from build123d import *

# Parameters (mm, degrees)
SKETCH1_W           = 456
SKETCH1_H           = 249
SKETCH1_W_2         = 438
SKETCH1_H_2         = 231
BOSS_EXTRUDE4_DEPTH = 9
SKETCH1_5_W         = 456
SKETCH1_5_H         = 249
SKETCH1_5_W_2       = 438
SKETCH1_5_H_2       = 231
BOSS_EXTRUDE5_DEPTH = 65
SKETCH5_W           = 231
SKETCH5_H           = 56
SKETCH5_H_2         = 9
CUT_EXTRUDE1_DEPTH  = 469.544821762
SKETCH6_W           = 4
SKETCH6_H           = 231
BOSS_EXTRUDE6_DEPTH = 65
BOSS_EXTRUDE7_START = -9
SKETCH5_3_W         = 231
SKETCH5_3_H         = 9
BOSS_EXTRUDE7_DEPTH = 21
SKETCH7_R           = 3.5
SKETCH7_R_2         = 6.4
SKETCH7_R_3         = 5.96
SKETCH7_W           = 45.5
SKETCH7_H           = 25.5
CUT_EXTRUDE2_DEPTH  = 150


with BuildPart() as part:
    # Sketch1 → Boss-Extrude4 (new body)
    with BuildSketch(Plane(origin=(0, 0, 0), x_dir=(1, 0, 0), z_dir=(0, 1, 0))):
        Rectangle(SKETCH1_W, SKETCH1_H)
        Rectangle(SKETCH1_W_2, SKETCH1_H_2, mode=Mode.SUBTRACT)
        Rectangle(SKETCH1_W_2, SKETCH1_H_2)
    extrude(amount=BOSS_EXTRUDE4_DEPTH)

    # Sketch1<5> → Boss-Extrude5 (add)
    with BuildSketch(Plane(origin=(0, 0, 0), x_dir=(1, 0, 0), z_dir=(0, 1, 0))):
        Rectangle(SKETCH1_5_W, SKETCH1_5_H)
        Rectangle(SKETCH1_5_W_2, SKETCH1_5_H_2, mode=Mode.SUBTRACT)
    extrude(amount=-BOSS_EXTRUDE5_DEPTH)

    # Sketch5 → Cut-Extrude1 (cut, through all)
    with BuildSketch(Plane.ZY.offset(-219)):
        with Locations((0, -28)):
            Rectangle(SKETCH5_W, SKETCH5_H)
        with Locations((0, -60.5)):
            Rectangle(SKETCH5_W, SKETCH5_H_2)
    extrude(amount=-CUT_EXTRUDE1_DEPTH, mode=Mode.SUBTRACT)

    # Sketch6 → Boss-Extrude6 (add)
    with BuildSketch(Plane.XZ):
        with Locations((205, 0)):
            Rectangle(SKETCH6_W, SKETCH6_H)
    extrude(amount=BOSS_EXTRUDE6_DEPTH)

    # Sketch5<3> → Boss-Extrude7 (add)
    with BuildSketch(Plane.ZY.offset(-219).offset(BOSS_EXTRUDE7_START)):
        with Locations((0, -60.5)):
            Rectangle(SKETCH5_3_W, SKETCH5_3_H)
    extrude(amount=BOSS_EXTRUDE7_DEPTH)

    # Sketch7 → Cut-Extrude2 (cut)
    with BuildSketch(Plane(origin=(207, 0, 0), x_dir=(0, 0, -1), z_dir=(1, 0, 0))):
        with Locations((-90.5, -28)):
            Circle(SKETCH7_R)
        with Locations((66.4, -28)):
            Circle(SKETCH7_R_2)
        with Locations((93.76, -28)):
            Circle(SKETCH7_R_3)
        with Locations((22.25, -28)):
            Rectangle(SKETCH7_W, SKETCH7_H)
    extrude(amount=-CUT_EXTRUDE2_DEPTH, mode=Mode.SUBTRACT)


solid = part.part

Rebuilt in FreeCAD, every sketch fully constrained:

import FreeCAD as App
import Part
import Sketcher
from FreeCAD import Vector
Q = App.Units.Quantity


def add_polygon(sketch, points):
    """Adds a closed chain of lines whose ends are joined by coincident constraints."""
    first, n = sketch.GeometryCount, len(points)
    for a, b in zip(points, points[1:] + points[:1]):
        sketch.addGeometry(Part.LineSegment(App.Vector(*a, 0), App.Vector(*b, 0)), False)
    for i in range(n):
        sketch.addConstraint(Sketcher.Constraint("Coincident", first + i, 2, first + (i + 1) % n, 1))

doc = App.newDocument("Part")
params = doc.addObject("Spreadsheet::Sheet", "Params")
for row, (alias, value) in enumerate([
    ("sketch1_width", "456 mm"),
    ("sketch1_height", "249 mm"),
    ("pad1_length", "9 mm"),
    ("sketch2_width", "456 mm"),
    ("sketch2_width2", "438 mm"),
    ("sketch2_height", "249 mm"),
    ("sketch2_height2", "231 mm"),
    ("pad2_length", "65 mm"),
    ("sketch3_width", "65 mm"),
    ("sketch3_height", "231 mm"),
    ("sketch4_width", "4 mm"),
    ("sketch4_height", "231 mm"),
    ("pad3_length", "65 mm"),
    ("sketch5_width", "9 mm"),
    ("sketch5_height", "231 mm"),
    ("pad4_length", "21 mm"),
    ("sketch6_diameter", "7 mm"),
    ("sketch6_diameter2", "12.8 mm"),
    ("sketch6_diameter3", "11.92 mm"),
    ("sketch6_width", "25.5 mm"),
    ("sketch6_height", "45.5 mm"),
    ("pocket2_length", "150 mm"),
], start=1):
    params.set(f"A{row}", alias)
    params.set(f"B{row}", "=" + value)
    params.setAlias(f"B{row}", alias)

body = doc.addObject("PartDesign::Body", "Body")

sketch1 = body.newObject("Sketcher::SketchObject", "Sketch")
sketch1.AttachmentSupport = (doc.getObject("XZ_Plane"), [""])
sketch1.MapMode = "FlatFace"
add_polygon(sketch1, [(-228, -124), (-228, 124), (228, 124), (228, -124)])
sketch1.addConstraint(Sketcher.Constraint("Vertical", 0))
sketch1.addConstraint(Sketcher.Constraint("Horizontal", 1))
sketch1.addConstraint(Sketcher.Constraint("Vertical", 2))
sketch1.addConstraint(Sketcher.Constraint("Horizontal", 3))
sketch1.addConstraint(Sketcher.Constraint("Symmetric", 0, 2, 2, 2, -1, 1))
sketch1.addConstraint(Sketcher.Constraint("DistanceX", 1, 1, 1, 2, Q("456 mm")))
sketch1.addConstraint(Sketcher.Constraint("DistanceY", 0, 1, 0, 2, Q("249 mm")))
sketch1.setExpression("Constraints[9]", "Params.sketch1_width")
sketch1.setExpression("Constraints[10]", "Params.sketch1_height")
pad1 = body.newObject("PartDesign::Pad", "Pad")
pad1.Profile = sketch1
pad1.setExpression("Length", "Params.pad1_length")
pad1.Reversed = True

sketch2 = body.newObject("Sketcher::SketchObject", "Sketch001")
sketch2.AttachmentSupport = (doc.getObject("XZ_Plane"), [""])
sketch2.MapMode = "FlatFace"
add_polygon(sketch2, [(-228, -124), (-228, 124), (228, 124), (228, -124)])
add_polygon(sketch2, [(219, 116), (-219, 116), (-219, -116), (219, -116)])
sketch2.addConstraint(Sketcher.Constraint("Vertical", 0))
sketch2.addConstraint(Sketcher.Constraint("Horizontal", 1))
sketch2.addConstraint(Sketcher.Constraint("Vertical", 2))
sketch2.addConstraint(Sketcher.Constraint("Horizontal", 3))
sketch2.addConstraint(Sketcher.Constraint("Horizontal", 4))
sketch2.addConstraint(Sketcher.Constraint("Vertical", 5))
sketch2.addConstraint(Sketcher.Constraint("Horizontal", 6))
sketch2.addConstraint(Sketcher.Constraint("Vertical", 7))
sketch2.addConstraint(Sketcher.Constraint("Symmetric", 0, 2, 2, 2, -1, 1))
sketch2.addConstraint(Sketcher.Constraint("Symmetric", 4, 2, 6, 2, -1, 1))
sketch2.addConstraint(Sketcher.Constraint("DistanceX", 1, 1, 1, 2, Q("456 mm")))
sketch2.addConstraint(Sketcher.Constraint("DistanceX", 4, 2, 4, 1, Q("438 mm")))
sketch2.addConstraint(Sketcher.Constraint("DistanceY", 0, 1, 0, 2, Q("249 mm")))
sketch2.addConstraint(Sketcher.Constraint("DistanceY", 5, 2, 5, 1, Q("231 mm")))
sketch2.setExpression("Constraints[18]", "Params.sketch2_width")
sketch2.setExpression("Constraints[19]", "Params.sketch2_width2")
sketch2.setExpression("Constraints[20]", "Params.sketch2_height")
sketch2.setExpression("Constraints[21]", "Params.sketch2_height2")
pad2 = body.newObject("PartDesign::Pad", "Pad001")
pad2.Profile = sketch2
pad2.setExpression("Length", "Params.pad2_length")

sketch3 = body.newObject("Sketcher::SketchObject", "Sketch002")
sketch3.AttachmentSupport = (doc.getObject("YZ_Plane"), [""])
sketch3.MapMode = "FlatFace"
sketch3.AttachmentOffset = App.Placement(Vector(0, 0, 219), App.Rotation())
add_polygon(sketch3, [(0, -116), (-65, -116), (-65, 116), (0, 116)])
sketch3.addConstraint(Sketcher.Constraint("Horizontal", 0))
sketch3.addConstraint(Sketcher.Constraint("Vertical", 1))
sketch3.addConstraint(Sketcher.Constraint("Horizontal", 2))
sketch3.addConstraint(Sketcher.Constraint("Vertical", 3))
sketch3.addConstraint(Sketcher.Constraint("Symmetric", 2, 2, 3, 2, -1, 1))
sketch3.addConstraint(Sketcher.Constraint("DistanceX", 0, 2, 0, 1, Q("65 mm")))
sketch3.addConstraint(Sketcher.Constraint("DistanceY", 1, 1, 1, 2, Q("231 mm")))
sketch3.setExpression("Constraints[9]", "Params.sketch3_width")
sketch3.setExpression("Constraints[10]", "Params.sketch3_height")
pocket1 = body.newObject("PartDesign::Pocket", "Pocket")
pocket1.Profile = sketch3
pocket1.Type = "ThroughAll"
pocket1.Reversed = True

sketch4 = body.newObject("Sketcher::SketchObject", "Sketch003")
sketch4.AttachmentSupport = (doc.getObject("XZ_Plane"), [""])
sketch4.MapMode = "FlatFace"
add_polygon(sketch4, [(203, 115.5), (203, -115.5), (207, -115.5), (207, 115.5)])
sketch4.addConstraint(Sketcher.Constraint("Vertical", 0))
sketch4.addConstraint(Sketcher.Constraint("Horizontal", 1))
sketch4.addConstraint(Sketcher.Constraint("Vertical", 2))
sketch4.addConstraint(Sketcher.Constraint("Horizontal", 3))
sketch4.addConstraint(Sketcher.Constraint("DistanceX", 1, 1, 1, 2, Q("4 mm")))
sketch4.addConstraint(Sketcher.Constraint("DistanceY", 0, 2, 0, 1, Q("231 mm")))
sketch4.addConstraint(Sketcher.Constraint("DistanceX", -1, 1, 0, 2, Q("203 mm")))
sketch4.addConstraint(Sketcher.Constraint("DistanceY", 0, 2, -1, 1, Q("115.5 mm")))
sketch4.setExpression("Constraints[8]", "Params.sketch4_width")
sketch4.setExpression("Constraints[9]", "Params.sketch4_height")
pad3 = body.newObject("PartDesign::Pad", "Pad002")
pad3.Profile = sketch4
pad3.setExpression("Length", "Params.pad3_length")

sketch5 = body.newObject("Sketcher::SketchObject", "Sketch004")
sketch5.AttachmentSupport = (doc.getObject("YZ_Plane"), [""])
sketch5.MapMode = "FlatFace"
sketch5.AttachmentOffset = App.Placement(Vector(0, 0, 228), App.Rotation())
add_polygon(sketch5, [(-56, -116), (-65, -116), (-65, 116), (-56, 116)])
sketch5.addConstraint(Sketcher.Constraint("Horizontal", 0))
sketch5.addConstraint(Sketcher.Constraint("Vertical", 1))
sketch5.addConstraint(Sketcher.Constraint("Horizontal", 2))
sketch5.addConstraint(Sketcher.Constraint("Vertical", 3))
sketch5.addConstraint(Sketcher.Constraint("DistanceX", 0, 2, 0, 1, Q("9 mm")))
sketch5.addConstraint(Sketcher.Constraint("DistanceY", 1, 1, 1, 2, Q("231 mm")))
sketch5.addConstraint(Sketcher.Constraint("DistanceX", 0, 2, -1, 1, Q("65 mm")))
sketch5.addConstraint(Sketcher.Constraint("DistanceY", 0, 2, -1, 1, Q("115.5 mm")))
sketch5.setExpression("Constraints[8]", "Params.sketch5_width")
sketch5.setExpression("Constraints[9]", "Params.sketch5_height")
pad4 = body.newObject("PartDesign::Pad", "Pad003")
pad4.Profile = sketch5
pad4.setExpression("Length", "Params.pad4_length")
pad4.Reversed = True

sketch6 = body.newObject("Sketcher::SketchObject", "Sketch005")
sketch6.AttachmentSupport = (doc.getObject("YZ_Plane"), [""])
sketch6.MapMode = "FlatFace"
sketch6.AttachmentOffset = App.Placement(Vector(0, 0, 207), App.Rotation())
sketch6.addGeometry(Part.Circle(Vector(-28, 90.5, 0), Vector(0, 0, 1), 3.5), False)
sketch6.addGeometry(Part.Circle(Vector(-28, -66.4, 0), Vector(0, 0, 1), 6.4), False)
sketch6.addGeometry(Part.Circle(Vector(-28, -93.8, 0), Vector(0, 0, 1), 6), False)
add_polygon(sketch6, [(-15.2, 0.5), (-40.8, 0.5), (-40.8, -45), (-15.2, -45)])
sketch6.addConstraint(Sketcher.Constraint("Horizontal", 3))
sketch6.addConstraint(Sketcher.Constraint("Vertical", 4))
sketch6.addConstraint(Sketcher.Constraint("Horizontal", 5))
sketch6.addConstraint(Sketcher.Constraint("Vertical", 6))
sketch6.addConstraint(Sketcher.Constraint("Vertical", 0, 3, 1, 3))
sketch6.addConstraint(Sketcher.Constraint("Vertical", 1, 3, 2, 3))
sketch6.addConstraint(Sketcher.Constraint("Diameter", 0, Q("7 mm")))
sketch6.addConstraint(Sketcher.Constraint("Diameter", 1, Q("12.8 mm")))
sketch6.addConstraint(Sketcher.Constraint("Diameter", 2, Q("11.92 mm")))
sketch6.addConstraint(Sketcher.Constraint("DistanceX", 3, 2, 3, 1, Q("25.5 mm")))
sketch6.addConstraint(Sketcher.Constraint("DistanceY", 4, 2, 4, 1, Q("45.5 mm")))
sketch6.addConstraint(Sketcher.Constraint("DistanceX", 0, 3, -1, 1, Q("28 mm")))
sketch6.addConstraint(Sketcher.Constraint("DistanceY", 4, 2, -1, 1, Q("45 mm")))
sketch6.addConstraint(Sketcher.Constraint("DistanceY", 3, 2, 0, 3, Q("90 mm")))
sketch6.addConstraint(Sketcher.Constraint("DistanceY", 1, 3, -1, 1, Q("66.4 mm")))
sketch6.addConstraint(Sketcher.Constraint("DistanceY", 2, 3, -1, 1, Q("93.76 mm")))
sketch6.addConstraint(Sketcher.Constraint("DistanceX", 3, 2, -1, 1, Q("40.75 mm")))
sketch6.setExpression("Constraints[10]", "Params.sketch6_diameter")
sketch6.setExpression("Constraints[11]", "Params.sketch6_diameter2")
sketch6.setExpression("Constraints[12]", "Params.sketch6_diameter3")
sketch6.setExpression("Constraints[13]", "Params.sketch6_width")
sketch6.setExpression("Constraints[14]", "Params.sketch6_height")
pocket2 = body.newObject("PartDesign::Pocket", "Pocket001")
pocket2.Profile = sketch6
pocket2.setExpression("Length", "Params.pocket2_length")

doc.recompute()
